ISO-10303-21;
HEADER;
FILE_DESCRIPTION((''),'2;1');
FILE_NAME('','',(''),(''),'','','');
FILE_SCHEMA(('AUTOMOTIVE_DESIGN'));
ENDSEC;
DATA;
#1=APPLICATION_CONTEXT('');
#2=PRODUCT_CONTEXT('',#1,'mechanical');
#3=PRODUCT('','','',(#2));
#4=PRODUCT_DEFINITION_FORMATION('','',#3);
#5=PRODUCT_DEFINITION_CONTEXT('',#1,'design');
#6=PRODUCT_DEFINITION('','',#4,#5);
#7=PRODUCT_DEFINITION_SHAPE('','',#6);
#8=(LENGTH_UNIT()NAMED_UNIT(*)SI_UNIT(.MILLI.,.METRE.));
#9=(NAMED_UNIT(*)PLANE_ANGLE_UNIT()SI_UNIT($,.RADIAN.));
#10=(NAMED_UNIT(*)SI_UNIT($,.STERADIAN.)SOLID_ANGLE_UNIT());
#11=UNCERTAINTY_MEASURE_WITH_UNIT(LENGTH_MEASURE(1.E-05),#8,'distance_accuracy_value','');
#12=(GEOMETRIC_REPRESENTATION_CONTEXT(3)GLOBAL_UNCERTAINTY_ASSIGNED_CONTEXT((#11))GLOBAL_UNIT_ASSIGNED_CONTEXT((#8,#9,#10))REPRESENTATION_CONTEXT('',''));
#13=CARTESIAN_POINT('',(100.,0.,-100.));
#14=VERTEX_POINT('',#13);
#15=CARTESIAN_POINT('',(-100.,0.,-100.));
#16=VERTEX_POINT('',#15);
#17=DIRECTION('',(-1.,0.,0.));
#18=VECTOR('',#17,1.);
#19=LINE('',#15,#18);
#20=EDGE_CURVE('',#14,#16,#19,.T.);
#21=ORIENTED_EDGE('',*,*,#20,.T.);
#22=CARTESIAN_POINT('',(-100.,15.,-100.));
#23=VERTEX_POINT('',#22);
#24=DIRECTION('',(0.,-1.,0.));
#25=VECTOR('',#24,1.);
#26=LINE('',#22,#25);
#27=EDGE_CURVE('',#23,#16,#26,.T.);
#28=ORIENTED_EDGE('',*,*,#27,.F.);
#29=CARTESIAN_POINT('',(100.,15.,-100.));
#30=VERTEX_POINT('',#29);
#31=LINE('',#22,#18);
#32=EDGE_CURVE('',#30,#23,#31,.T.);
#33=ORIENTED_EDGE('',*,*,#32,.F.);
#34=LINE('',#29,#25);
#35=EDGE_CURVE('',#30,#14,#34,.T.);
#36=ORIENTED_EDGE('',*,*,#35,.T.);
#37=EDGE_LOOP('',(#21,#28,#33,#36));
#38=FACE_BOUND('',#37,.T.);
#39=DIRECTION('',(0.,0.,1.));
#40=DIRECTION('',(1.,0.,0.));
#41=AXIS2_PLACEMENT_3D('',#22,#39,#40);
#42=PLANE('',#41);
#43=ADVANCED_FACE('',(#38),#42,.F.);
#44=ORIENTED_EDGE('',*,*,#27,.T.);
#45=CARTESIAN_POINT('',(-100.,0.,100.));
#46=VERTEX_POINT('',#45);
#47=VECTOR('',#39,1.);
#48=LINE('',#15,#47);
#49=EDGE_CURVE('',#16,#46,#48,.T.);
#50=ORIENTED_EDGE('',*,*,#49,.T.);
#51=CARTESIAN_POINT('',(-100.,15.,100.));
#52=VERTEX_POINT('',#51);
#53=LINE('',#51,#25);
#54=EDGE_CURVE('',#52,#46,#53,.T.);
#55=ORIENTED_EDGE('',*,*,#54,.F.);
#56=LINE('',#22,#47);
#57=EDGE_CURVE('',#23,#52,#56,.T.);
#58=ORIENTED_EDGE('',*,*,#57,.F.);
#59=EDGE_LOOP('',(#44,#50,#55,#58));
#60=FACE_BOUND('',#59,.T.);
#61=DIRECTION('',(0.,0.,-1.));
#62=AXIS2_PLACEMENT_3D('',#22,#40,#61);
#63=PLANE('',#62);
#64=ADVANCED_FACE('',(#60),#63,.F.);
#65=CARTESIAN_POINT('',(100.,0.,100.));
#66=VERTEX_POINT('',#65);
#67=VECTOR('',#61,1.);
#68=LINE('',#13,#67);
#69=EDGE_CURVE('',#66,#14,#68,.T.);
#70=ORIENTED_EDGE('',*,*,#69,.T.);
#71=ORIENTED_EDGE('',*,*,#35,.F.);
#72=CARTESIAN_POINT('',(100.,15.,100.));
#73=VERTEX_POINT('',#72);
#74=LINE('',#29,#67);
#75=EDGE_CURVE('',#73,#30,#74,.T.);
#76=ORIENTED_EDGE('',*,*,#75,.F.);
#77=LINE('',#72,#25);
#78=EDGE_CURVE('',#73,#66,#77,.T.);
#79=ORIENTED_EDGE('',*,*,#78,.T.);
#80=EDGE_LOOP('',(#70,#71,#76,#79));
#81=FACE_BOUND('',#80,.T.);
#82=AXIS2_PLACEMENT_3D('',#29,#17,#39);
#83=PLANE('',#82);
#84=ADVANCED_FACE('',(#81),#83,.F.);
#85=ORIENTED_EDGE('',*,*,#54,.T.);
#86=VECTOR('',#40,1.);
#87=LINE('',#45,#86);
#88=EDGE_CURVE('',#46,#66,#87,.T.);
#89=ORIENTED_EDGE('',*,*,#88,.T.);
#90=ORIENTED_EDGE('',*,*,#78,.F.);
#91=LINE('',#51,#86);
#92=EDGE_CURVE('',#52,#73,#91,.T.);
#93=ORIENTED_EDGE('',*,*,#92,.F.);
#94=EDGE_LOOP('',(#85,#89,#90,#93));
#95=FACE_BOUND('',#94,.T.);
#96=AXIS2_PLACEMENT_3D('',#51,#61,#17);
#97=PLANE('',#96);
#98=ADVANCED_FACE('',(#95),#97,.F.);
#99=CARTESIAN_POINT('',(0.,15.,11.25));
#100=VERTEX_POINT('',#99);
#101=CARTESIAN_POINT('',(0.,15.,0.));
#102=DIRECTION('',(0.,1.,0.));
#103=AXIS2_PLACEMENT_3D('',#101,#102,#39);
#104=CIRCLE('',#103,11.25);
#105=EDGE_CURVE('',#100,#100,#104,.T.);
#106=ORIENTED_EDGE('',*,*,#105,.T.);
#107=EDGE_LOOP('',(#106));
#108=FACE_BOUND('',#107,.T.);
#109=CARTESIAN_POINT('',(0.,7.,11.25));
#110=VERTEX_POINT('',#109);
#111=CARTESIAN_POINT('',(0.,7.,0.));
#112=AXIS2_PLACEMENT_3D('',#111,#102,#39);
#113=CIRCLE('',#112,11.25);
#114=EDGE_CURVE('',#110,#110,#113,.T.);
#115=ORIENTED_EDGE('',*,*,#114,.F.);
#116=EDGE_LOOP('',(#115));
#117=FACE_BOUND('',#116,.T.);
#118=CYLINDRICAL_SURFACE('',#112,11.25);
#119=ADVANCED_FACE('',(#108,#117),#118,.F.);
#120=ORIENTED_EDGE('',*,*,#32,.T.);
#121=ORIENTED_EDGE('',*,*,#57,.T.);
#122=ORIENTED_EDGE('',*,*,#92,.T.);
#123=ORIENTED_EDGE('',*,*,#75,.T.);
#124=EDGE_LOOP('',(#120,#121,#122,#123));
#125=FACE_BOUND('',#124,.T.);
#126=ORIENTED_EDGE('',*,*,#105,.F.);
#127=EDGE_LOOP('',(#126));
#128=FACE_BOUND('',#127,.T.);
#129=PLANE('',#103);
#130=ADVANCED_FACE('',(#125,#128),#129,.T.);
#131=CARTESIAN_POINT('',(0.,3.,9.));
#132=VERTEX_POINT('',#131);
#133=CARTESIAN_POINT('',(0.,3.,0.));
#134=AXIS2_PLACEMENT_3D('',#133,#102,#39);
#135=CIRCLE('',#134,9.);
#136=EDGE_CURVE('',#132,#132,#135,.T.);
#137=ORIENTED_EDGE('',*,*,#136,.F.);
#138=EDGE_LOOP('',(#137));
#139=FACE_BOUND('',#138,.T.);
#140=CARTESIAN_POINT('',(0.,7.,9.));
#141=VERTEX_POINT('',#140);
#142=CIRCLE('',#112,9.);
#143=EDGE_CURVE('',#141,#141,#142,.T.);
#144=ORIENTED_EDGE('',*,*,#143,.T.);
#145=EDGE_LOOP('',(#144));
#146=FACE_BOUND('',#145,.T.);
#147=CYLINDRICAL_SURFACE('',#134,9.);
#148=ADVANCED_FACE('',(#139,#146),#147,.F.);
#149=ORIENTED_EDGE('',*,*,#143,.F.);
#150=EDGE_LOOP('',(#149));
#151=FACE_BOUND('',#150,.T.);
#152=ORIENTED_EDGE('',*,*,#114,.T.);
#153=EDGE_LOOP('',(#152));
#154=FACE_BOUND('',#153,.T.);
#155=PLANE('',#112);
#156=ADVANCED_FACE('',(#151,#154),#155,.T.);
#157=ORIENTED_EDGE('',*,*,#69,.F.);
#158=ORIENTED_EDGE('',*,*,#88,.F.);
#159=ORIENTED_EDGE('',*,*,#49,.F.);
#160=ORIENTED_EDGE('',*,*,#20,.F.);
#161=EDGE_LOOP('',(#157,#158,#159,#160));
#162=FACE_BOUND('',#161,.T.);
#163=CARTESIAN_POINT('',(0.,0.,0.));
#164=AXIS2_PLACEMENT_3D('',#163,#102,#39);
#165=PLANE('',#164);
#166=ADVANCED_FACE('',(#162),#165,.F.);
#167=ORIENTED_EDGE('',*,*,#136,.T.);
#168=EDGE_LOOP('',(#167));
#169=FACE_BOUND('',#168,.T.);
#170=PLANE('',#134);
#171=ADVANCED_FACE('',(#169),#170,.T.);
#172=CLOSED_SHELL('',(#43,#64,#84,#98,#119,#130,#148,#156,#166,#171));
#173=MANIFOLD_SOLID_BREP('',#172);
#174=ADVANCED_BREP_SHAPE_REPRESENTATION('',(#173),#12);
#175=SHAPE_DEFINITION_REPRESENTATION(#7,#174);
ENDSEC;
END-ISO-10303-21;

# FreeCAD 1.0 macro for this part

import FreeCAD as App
import Part
import Sketcher

doc = App.newDocument("Part")
params = doc.addObject("Spreadsheet::Sheet", "Params")
for row, (alias, value) in enumerate([
    ("sketch1_width", "200 mm"),
    ("pad1_length", "15 mm"),
    ("sketch2_diameter", "22.5 mm"),
    ("pocket1_length", "8 mm"),
    ("sketch3_diameter", "18 mm"),
    ("pocket2_length", "4 mm"),
], start=1):
    params.set(f"A{row}", alias)
    params.set(f"B{row}", "=" + value)
    params.setAlias(f"B{row}", alias)

body = doc.addObject("PartDesign::Body", "Body")

# Sketch on XZ plane
sketch1 = doc.addObject("Sketcher::SketchObject", "Sketch")
body.addObject(sketch1)
sketch1.AttachmentSupport = (doc.XZ_Plane, [""])
sketch1.MapMode = "FlatFace"
sketch1.addGeometry([
    Part.LineSegment(App.Vector(-100, -100, 0), App.Vector(-100, 100, 0)),
    Part.LineSegment(App.Vector(-100, 100, 0), App.Vector(100, 100, 0)),
    Part.LineSegment(App.Vector(100, 100, 0), App.Vector(100, -100, 0)),
    Part.LineSegment(App.Vector(100, -100, 0), App.Vector(-100, -100, 0)),
], False)
sketch1.addConstraint([
    Sketcher.Constraint("Coincident", 0, 2, 1, 1),
    Sketcher.Constraint("Coincident", 1, 2, 2, 1),
    Sketcher.Constraint("Coincident", 2, 2, 3, 1),
    Sketcher.Constraint("Coincident", 3, 2, 0, 1),
    Sketcher.Constraint("Vertical", 0),
    Sketcher.Constraint("Horizontal", 1),
    Sketcher.Constraint("Vertical", 2),
    Sketcher.Constraint("Horizontal", 3),
    Sketcher.Constraint("Symmetric", 0, 2, 2, 2, -1, 1),
    Sketcher.Constraint("Equal", 3, 0),
    Sketcher.Constraint("DistanceX", 1, 1, 1, 2, 200.0),
])
sketch1.setExpression("Constraints[10]", "Params.sketch1_width")
pad1 = doc.addObject("PartDesign::Pad", "Pad")
body.addObject(pad1)
pad1.Profile = sketch1
pad1.setExpression("Length", "Params.pad1_length")
pad1.Reversed = True

# Sketch on XZ plane
sketch2 = doc.addObject("Sketcher::SketchObject", "Sketch001")
body.addObject(sketch2)
sketch2.AttachmentSupport = (doc.XZ_Plane, [""])
sketch2.MapMode = "FlatFace"
sketch2.AttachmentOffset = App.Placement(App.Vector(0, 0, -15), App.Rotation())
sketch2.addGeometry(Part.Circle(App.Vector(0, 0, 0), App.Vector(0, 0, 1), 11.25), False)
sketch2.addConstraint([
    Sketcher.Constraint("Coincident", 0, 3, -1, 1),
    Sketcher.Constraint("Diameter", 0, 22.5),
])
sketch2.setExpression("Constraints[1]", "Params.sketch2_diameter")
pocket1 = doc.addObject("PartDesign::Pocket", "Pocket")
body.addObject(pocket1)
pocket1.Profile = sketch2
pocket1.setExpression("Length", "Params.pocket1_length")
pocket1.Reversed = True

# Sketch on XZ plane
sketch3 = doc.addObject("Sketcher::SketchObject", "Sketch002")
body.addObject(sketch3)
sketch3.AttachmentSupport = (doc.XZ_Plane, [""])
sketch3.MapMode = "FlatFace"
sketch3.AttachmentOffset = App.Placement(App.Vector(0, 0, -7), App.Rotation())
sketch3.addGeometry(Part.Circle(App.Vector(0, 0, 0), App.Vector(0, 0, 1), 9), False)
sketch3.addConstraint([
    Sketcher.Constraint("Coincident", 0, 3, -1, 1),
    Sketcher.Constraint("Diameter", 0, 18.0),
])
sketch3.setExpression("Constraints[1]", "Params.sketch3_diameter")
pocket2 = doc.addObject("PartDesign::Pocket", "Pocket001")
body.addObject(pocket2)
pocket2.Profile = sketch3
pocket2.setExpression("Length", "Params.pocket2_length")
pocket2.Reversed = True

doc.recompute()
